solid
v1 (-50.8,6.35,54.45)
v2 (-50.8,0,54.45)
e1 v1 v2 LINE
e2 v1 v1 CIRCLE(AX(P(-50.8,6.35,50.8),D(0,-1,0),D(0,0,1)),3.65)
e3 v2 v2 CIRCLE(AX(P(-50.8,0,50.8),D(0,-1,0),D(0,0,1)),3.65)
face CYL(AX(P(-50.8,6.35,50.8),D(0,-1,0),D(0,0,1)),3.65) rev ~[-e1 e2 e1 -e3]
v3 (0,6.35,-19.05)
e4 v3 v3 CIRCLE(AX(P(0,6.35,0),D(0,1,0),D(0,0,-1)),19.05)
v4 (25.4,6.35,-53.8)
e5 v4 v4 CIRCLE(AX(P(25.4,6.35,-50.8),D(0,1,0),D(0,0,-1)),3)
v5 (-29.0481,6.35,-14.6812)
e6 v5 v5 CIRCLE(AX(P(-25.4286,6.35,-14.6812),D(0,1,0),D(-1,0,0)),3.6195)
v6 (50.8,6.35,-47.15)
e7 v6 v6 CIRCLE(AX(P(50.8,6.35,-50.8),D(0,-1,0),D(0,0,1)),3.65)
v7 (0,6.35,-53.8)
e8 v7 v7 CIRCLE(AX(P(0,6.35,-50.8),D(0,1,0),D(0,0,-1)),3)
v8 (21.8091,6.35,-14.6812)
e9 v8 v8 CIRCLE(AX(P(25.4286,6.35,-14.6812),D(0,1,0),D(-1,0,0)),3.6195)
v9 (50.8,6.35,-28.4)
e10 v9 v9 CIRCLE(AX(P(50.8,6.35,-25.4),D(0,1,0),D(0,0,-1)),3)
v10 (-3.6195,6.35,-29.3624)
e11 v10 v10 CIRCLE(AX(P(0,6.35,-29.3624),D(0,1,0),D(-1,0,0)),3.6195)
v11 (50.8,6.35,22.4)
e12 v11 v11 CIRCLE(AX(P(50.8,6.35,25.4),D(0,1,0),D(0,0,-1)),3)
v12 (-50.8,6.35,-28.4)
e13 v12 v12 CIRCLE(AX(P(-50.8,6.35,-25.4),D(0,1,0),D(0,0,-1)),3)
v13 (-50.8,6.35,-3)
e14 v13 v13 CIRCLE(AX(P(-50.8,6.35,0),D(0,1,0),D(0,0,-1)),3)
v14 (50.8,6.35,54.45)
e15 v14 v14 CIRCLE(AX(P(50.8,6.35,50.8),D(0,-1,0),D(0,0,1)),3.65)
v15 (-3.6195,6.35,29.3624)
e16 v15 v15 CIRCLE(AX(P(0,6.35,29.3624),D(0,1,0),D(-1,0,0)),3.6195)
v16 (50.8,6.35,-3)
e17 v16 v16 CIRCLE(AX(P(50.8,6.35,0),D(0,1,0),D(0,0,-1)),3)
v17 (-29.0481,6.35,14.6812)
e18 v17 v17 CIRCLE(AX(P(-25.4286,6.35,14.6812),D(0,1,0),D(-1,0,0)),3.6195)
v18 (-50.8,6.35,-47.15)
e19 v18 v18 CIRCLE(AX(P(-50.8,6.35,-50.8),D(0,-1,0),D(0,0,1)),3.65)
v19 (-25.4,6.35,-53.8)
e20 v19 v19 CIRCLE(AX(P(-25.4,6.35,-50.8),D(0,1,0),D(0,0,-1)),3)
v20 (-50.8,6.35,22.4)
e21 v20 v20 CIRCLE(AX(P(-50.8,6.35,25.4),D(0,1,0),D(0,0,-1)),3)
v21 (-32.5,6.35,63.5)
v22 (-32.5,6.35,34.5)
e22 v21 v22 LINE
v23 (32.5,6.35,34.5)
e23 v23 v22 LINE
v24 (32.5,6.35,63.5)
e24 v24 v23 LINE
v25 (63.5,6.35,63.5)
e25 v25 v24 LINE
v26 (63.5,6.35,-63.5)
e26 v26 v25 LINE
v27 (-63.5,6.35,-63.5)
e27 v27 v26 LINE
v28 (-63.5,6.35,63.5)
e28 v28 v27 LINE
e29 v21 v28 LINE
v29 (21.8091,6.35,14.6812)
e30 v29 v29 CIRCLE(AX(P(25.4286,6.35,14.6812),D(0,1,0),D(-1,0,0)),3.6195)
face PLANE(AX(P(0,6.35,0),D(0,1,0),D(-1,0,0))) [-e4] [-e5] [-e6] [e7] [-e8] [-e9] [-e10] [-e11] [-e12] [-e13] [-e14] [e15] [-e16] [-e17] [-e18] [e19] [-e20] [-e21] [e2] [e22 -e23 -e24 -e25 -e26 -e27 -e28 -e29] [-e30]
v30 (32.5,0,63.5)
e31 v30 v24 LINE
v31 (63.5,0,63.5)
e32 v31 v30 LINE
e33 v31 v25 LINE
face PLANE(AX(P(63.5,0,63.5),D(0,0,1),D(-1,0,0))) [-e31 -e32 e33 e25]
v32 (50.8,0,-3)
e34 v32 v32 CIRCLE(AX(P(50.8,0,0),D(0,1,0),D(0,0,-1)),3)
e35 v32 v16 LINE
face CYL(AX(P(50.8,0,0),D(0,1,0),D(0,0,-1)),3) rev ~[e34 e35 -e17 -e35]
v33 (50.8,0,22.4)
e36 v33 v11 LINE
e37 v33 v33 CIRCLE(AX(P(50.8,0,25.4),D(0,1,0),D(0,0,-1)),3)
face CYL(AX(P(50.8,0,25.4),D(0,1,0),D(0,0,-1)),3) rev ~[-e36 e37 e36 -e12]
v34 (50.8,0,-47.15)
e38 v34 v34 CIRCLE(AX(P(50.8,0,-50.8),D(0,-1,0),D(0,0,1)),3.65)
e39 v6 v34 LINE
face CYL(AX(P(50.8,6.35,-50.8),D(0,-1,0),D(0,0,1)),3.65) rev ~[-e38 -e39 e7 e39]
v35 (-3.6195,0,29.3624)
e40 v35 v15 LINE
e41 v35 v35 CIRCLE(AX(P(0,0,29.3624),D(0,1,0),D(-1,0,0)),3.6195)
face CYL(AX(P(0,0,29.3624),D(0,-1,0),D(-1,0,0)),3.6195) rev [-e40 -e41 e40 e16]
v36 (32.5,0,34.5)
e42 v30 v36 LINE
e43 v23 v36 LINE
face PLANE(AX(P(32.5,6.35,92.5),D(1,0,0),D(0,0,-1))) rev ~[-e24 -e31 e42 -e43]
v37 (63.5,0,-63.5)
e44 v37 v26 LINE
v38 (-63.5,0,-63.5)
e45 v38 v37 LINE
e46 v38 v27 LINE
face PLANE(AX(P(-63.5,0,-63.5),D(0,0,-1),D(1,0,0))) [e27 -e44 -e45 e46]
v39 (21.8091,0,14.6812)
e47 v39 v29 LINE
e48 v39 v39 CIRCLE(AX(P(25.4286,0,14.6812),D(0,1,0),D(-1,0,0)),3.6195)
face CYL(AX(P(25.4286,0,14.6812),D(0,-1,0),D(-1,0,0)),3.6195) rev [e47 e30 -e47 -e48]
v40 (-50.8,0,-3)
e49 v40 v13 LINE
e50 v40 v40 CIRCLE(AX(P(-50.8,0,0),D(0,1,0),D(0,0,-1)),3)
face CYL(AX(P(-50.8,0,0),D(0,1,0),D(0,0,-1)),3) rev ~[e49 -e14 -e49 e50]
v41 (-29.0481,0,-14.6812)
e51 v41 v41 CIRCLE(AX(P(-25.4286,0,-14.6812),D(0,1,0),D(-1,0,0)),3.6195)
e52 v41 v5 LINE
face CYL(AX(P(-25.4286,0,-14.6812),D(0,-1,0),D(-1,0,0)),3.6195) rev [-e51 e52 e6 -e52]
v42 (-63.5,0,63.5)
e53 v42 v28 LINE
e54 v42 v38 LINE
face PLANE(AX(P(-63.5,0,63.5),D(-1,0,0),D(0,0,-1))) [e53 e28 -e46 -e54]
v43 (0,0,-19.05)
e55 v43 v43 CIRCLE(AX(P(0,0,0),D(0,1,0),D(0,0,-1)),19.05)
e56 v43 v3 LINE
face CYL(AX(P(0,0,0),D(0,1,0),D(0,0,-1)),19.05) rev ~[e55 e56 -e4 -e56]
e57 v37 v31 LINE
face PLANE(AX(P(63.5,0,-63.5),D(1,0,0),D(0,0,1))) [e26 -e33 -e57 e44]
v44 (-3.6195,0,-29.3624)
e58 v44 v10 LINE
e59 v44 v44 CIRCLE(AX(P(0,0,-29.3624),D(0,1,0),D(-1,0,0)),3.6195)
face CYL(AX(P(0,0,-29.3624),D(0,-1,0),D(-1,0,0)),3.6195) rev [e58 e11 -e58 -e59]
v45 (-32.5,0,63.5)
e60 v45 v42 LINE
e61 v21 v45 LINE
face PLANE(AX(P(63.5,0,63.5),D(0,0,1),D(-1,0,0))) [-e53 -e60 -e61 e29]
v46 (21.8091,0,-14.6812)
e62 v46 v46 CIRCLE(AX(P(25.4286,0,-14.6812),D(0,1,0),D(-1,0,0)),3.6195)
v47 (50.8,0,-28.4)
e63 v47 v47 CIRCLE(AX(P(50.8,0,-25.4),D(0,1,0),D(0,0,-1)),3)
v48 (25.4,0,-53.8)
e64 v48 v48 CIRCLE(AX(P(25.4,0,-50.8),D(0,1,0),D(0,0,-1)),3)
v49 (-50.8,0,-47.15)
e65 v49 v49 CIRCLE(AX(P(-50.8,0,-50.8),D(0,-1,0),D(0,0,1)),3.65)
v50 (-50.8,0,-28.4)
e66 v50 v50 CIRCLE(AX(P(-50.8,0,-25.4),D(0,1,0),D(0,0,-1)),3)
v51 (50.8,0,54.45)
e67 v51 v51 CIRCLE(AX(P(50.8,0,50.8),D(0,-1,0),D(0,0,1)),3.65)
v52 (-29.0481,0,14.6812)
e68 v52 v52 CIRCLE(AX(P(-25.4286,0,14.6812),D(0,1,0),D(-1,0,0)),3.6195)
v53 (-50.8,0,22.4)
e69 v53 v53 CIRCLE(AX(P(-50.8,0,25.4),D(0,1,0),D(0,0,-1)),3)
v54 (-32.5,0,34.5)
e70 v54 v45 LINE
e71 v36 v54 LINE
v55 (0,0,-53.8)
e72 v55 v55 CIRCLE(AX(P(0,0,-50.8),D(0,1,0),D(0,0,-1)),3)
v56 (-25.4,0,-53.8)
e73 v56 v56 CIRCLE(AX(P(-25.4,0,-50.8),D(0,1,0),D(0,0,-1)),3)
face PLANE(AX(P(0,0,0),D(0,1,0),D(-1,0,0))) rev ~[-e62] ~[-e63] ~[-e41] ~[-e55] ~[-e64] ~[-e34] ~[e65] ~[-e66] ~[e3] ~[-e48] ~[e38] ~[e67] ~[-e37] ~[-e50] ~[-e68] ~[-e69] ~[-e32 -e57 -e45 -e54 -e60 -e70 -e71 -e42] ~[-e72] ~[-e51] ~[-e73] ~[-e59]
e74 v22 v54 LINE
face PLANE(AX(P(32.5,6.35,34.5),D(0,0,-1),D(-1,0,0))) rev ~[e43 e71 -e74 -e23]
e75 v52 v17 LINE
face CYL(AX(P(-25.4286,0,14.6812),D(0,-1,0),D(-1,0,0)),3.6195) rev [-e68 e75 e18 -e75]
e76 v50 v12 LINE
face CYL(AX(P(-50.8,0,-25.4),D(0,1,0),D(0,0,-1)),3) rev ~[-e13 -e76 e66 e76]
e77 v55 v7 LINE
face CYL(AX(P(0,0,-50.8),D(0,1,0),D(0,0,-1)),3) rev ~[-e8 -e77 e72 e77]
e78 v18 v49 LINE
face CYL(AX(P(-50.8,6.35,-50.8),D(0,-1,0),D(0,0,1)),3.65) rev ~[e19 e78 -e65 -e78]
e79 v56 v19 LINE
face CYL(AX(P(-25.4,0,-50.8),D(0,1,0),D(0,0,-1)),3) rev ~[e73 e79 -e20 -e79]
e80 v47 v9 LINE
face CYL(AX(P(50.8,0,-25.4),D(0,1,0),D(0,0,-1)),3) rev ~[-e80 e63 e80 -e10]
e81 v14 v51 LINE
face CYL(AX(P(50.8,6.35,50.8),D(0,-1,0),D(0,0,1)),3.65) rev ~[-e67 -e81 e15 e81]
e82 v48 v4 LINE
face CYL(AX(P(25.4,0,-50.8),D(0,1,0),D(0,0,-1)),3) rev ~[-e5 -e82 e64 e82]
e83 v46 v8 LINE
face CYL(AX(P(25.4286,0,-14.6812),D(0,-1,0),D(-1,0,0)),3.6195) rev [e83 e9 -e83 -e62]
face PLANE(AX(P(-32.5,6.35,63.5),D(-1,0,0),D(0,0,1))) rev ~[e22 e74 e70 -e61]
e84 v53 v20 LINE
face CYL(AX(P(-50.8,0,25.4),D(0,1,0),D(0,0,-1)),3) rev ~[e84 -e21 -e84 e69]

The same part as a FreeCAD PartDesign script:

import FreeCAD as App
import Part
import Sketcher
Q = App.Units.Quantity

doc = App.newDocument("Part")
body = doc.addObject("PartDesign::Body", "Body")

# Sketch on XZ plane
sketch1 = doc.addObject("Sketcher::SketchObject", "Sketch")
body.addObject(sketch1)
sketch1.AttachmentSupport = (doc.XZ_Plane, [""])
sketch1.MapMode = "FlatFace"
sketch1.addGeometry([
    Part.LineSegment(App.Vector(-63.5, 63.5, 0), App.Vector(63.5, 63.5, 0)),  # 0
    Part.LineSegment(App.Vector(63.5, 63.5, 0), App.Vector(63.5, -63.5, 0)),  # 1
    Part.LineSegment(App.Vector(63.5, -63.5, 0), App.Vector(-63.5, -63.5, 0)),  # 2
    Part.LineSegment(App.Vector(-63.5, -63.5, 0), App.Vector(-63.5, 63.5, 0)),  # 3
    Part.Circle(App.Vector(25.4, -14.7, 0), App.Vector(0, 0, 1), 3.6),  # 4
    Part.Circle(App.Vector(0, -29.4, 0), App.Vector(0, 0, 1), 3.6),  # 5
    Part.Circle(App.Vector(-25.4, -14.7, 0), App.Vector(0, 0, 1), 3.6),  # 6
    Part.Circle(App.Vector(25.4, 14.7, 0), App.Vector(0, 0, 1), 3.6),  # 7
    Part.Circle(App.Vector(-25.4, 14.7, 0), App.Vector(0, 0, 1), 3.6),  # 8
    Part.Circle(App.Vector(0, 29.4, 0), App.Vector(0, 0, 1), 3.6),  # 9
], False)
sketch1.addConstraint([
    Sketcher.Constraint("Coincident", 0, 2, 1, 1),
    Sketcher.Constraint("Coincident", 1, 2, 2, 1),
    Sketcher.Constraint("Coincident", 2, 2, 3, 1),
    Sketcher.Constraint("Coincident", 3, 2, 0, 1),
    Sketcher.Constraint("Horizontal", 0),
    Sketcher.Constraint("Vertical", 1),
    Sketcher.Constraint("Horizontal", 2),
    Sketcher.Constraint("Vertical", 3),
    Sketcher.Constraint("Equal", 4, 5),
    Sketcher.Constraint("Equal", 5, 6),
    Sketcher.Constraint("Equal", 6, 7),
    Sketcher.Constraint("Equal", 7, 8),
    Sketcher.Constraint("Equal", 8, 9),
    Sketcher.Constraint("Symmetric", 6, 3, 7, 3, -1, 1),
    Sketcher.Constraint("Symmetric", 4, 3, 8, 3, -1, 1),
    Sketcher.Constraint("Symmetric", 5, 3, 9, 3, -1, 1),
    Sketcher.Constraint("Symmetric", 0, 2, 2, 2, -1, 1),
    Sketcher.Constraint("Symmetric", 4, 3, 6, 3, -2),
    Sketcher.Constraint("PointOnObject", 5, 3, -2),
    Sketcher.Constraint("Equal", 2, 1),
    Sketcher.Constraint("DistanceX", 0, 1, 0, 2, Q("5 in")),
    Sketcher.Constraint("Diameter", 4, Q("0.285 in")),
    Sketcher.Constraint("DistanceY", 4, 3, -1, 1, Q("0.578 in")),
    Sketcher.Constraint("DistanceY", 5, 3, -1, 1, Q("1.156 in")),
    Sketcher.Constraint("DistanceX", -1, 1, 4, 3, 25.4286),
])
pad1 = doc.addObject("PartDesign::Pad", "Pad")
body.addObject(pad1)
pad1.Profile = sketch1
pad1.Length = Q("0.25 in")
pad1.Reversed = True

# Sketch on XZ plane
sketch2 = doc.addObject("Sketcher::SketchObject", "Sketch001")
body.addObject(sketch2)
sketch2.AttachmentSupport = (doc.XZ_Plane, [""])
sketch2.MapMode = "FlatFace"
sketch2.addGeometry(Part.Circle(App.Vector(-50.8, 50.8, 0), App.Vector(0, 0, 1), 3), False)
sketch2.addConstraint([
    Sketcher.Constraint("DistanceX", 0, 3, -1, 1, Q("2 in")),
    Sketcher.Constraint("DistanceY", -1, 1, 0, 3, Q("2 in")),
    Sketcher.Constraint("Diameter", 0, 6.0),
])
doc.recompute()
hole = doc.addObject("PartDesign::Hole", "Hole")
body.addObject(hole)
hole.Profile = sketch2
hole.ThreadType = "None"
hole.Diameter = 6
hole.DepthType = "ThroughAll"

# Sketch on XZ plane
sketch3 = doc.addObject("Sketcher::SketchObject", "Sketch002")
body.addObject(sketch3)
sketch3.AttachmentSupport = (doc.XZ_Plane, [""])
sketch3.MapMode = "FlatFace"
sketch3.addGeometry(Part.Circle(App.Vector(50.8, 50.8, 0), App.Vector(0, 0, 1), 3), False)
sketch3.addConstraint([
    Sketcher.Constraint("DistanceX", -1, 1, 0, 3, Q("2 in")),
    Sketcher.Constraint("DistanceY", -1, 1, 0, 3, Q("2 in")),
    Sketcher.Constraint("Diameter", 0, 6.0),
])
doc.recompute()
hole2 = doc.addObject("PartDesign::Hole", "Hole001")
body.addObject(hole2)
hole2.Profile = sketch3
hole2.ThreadType = "None"
hole2.Diameter = 6
hole2.DepthType = "ThroughAll"

# Sketch on XZ plane
sketch4 = doc.addObject("Sketcher::SketchObject", "Sketch003")
body.addObject(sketch4)
sketch4.AttachmentSupport = (doc.XZ_Plane, [""])
sketch4.MapMode = "FlatFace"
sketch4.addGeometry(Part.Circle(App.Vector(50.8, -50.8, 0), App.Vector(0, 0, 1), 3), False)
sketch4.addConstraint([
    Sketcher.Constraint("DistanceX", -1, 1, 0, 3, Q("2 in")),
    Sketcher.Constraint("DistanceY", 0, 3, -1, 1, Q("2 in")),
    Sketcher.Constraint("Diameter", 0, 6.0),
])
doc.recompute()
hole3 = doc.addObject("PartDesign::Hole", "Hole002")
body.addObject(hole3)
hole3.Profile = sketch4
hole3.ThreadType = "None"
hole3.Diameter = 6
hole3.DepthType = "ThroughAll"

# Sketch on XZ plane
sketch5 = doc.addObject("Sketcher::SketchObject", "Sketch004")
body.addObject(sketch5)
sketch5.AttachmentSupport = (doc.XZ_Plane, [""])
sketch5.MapMode = "FlatFace"
sketch5.addGeometry(Part.Circle(App.Vector(-50.8, -50.8, 0), App.Vector(0, 0, 1), 3), False)
sketch5.addConstraint([
    Sketcher.Constraint("DistanceX", 0, 3, -1, 1, Q("2 in")),
    Sketcher.Constraint("DistanceY", 0, 3, -1, 1, Q("2 in")),
    Sketcher.Constraint("Diameter", 0, 6.0),
])
doc.recompute()
hole4 = doc.addObject("PartDesign::Hole", "Hole003")
body.addObject(hole4)
hole4.Profile = sketch5
hole4.ThreadType = "None"
hole4.Diameter = 6
hole4.DepthType = "ThroughAll"

# Sketch on XZ plane
sketch6 = doc.addObject("Sketcher::SketchObject", "Sketch005")
body.addObject(sketch6)
sketch6.AttachmentSupport = (doc.XZ_Plane, [""])
sketch6.MapMode = "FlatFace"
sketch6.addGeometry(Part.Circle(App.Vector(0, 0, 0), App.Vector(0, 0, 1), 19), False)
sketch6.addConstraint([
    Sketcher.Constraint("Coincident", 0, 3, -1, 1),
    Sketcher.Constraint("Diameter", 0, Q("1.5 in")),
])
doc.recompute()
hole5 = doc.addObject("PartDesign::Hole", "Hole004")
body.addObject(hole5)
hole5.Profile = sketch6
hole5.ThreadType = "None"
hole5.Diameter = Q("1.5 in")
hole5.DepthType = "ThroughAll"
doc.recompute()

linearpattern = doc.addObject("PartDesign::LinearPattern", "LinearPattern")
body.addObject(linearpattern)
linearpattern.Originals = [hole]
linearpattern.Direction = (doc.Z_Axis, [""])
linearpattern.Mode = "offset"
linearpattern.Offset = Q("1 in")
linearpattern.Occurrences = 4
linearpattern.Reversed = True
body.Tip = linearpattern
doc.recompute()

linearpattern2 = doc.addObject("PartDesign::LinearPattern", "LinearPattern001")
body.addObject(linearpattern2)
linearpattern2.Originals = [hole]
linearpattern2.Direction = (doc.X_Axis, [""])
linearpattern2.Mode = "offset"
linearpattern2.Offset = Q("1 in")
linearpattern2.Occurrences = 4
body.Tip = linearpattern2
doc.recompute()

linearpattern3 = doc.addObject("PartDesign::LinearPattern", "LinearPattern002")
body.addObject(linearpattern3)
linearpattern3.Originals = [hole2]
linearpattern3.Direction = (doc.Z_Axis, [""])
linearpattern3.Mode = "offset"
linearpattern3.Offset = Q("1 in")
linearpattern3.Occurrences = 4
linearpattern3.Reversed = True
body.Tip = linearpattern3
doc.recompute()

linearpattern4 = doc.addObject("PartDesign::LinearPattern", "LinearPattern003")
body.addObject(linearpattern4)
linearpattern4.Originals = [hole3]
linearpattern4.Direction = (doc.X_Axis, [""])
linearpattern4.Mode = "offset"
linearpattern4.Offset = Q("1 in")
linearpattern4.Occurrences = 4
linearpattern4.Reversed = True
body.Tip = linearpattern4

# Sketch on XZ plane
sketch7 = doc.addObject("Sketcher::SketchObject", "Sketch006")
body.addObject(sketch7)
sketch7.AttachmentSupport = (doc.XZ_Plane, [""])
sketch7.MapMode = "FlatFace"
sketch7.AttachmentOffset = App.Placement(App.Vector(0, 0, -0.25 * 25.4), App.Rotation())
sketch7.addGeometry([
    Part.LineSegment(App.Vector(-32, 92, 0), App.Vector(32, 92, 0)),
    Part.LineSegment(App.Vector(32, 92, 0), App.Vector(32, 34, 0)),
    Part.LineSegment(App.Vector(32, 34, 0), App.Vector(-32, 34, 0)),
    Part.LineSegment(App.Vector(-32, 34, 0), App.Vector(-32, 92, 0)),
], False)
sketch7.addConstraint([
    Sketcher.Constraint("Coincident", 0, 2, 1, 1),
    Sketcher.Constraint("Coincident", 1, 2, 2, 1),
    Sketcher.Constraint("Coincident", 2, 2, 3, 1),
    Sketcher.Constraint("Coincident", 3, 2, 0, 1),
    Sketcher.Constraint("Horizontal", 0),
    Sketcher.Constraint("Vertical", 1),
    Sketcher.Constraint("Horizontal", 2),
    Sketcher.Constraint("Vertical", 3),
    Sketcher.Constraint("DistanceX", 0, 1, 0, 2, 65.0),
    Sketcher.Constraint("DistanceY", 1, 2, 1, 1, 58.0),
    Sketcher.Constraint("DistanceX", -1, 1, 0, 2, 32.5),
    Sketcher.Constraint("DistanceY", -1, 1, 0, 2, 92.5),
])
pocket1 = doc.addObject("PartDesign::Pocket", "Pocket")
body.addObject(pocket1)
pocket1.Profile = sketch7
pocket1.Length = Q("1 in")
pocket1.Reversed = True

# Sketch on XZ plane
sketch8 = doc.addObject("Sketcher::SketchObject", "Sketch007")
body.addObject(sketch8)
sketch8.AttachmentSupport = (doc.XZ_Plane, [""])
sketch8.MapMode = "FlatFace"
sketch8.AttachmentOffset = App.Placement(App.Vector(0, 0, -0.25 * 25.4), App.Rotation())
sketch8.addGeometry(Part.Circle(App.Vector(-50.8, -50.8, 0), App.Vector(0, 0, 1), 3.6), False)
sketch8.addConstraint([
    Sketcher.Constraint("DistanceX", 0, 3, -1, 1, Q("2 in")),
    Sketcher.Constraint("DistanceY", 0, 3, -1, 1, Q("2 in")),
    Sketcher.Constraint("Diameter", 0, Q("0.2874 in")),
])
doc.recompute()
hole6 = doc.addObject("PartDesign::Hole", "Hole005")
body.addObject(hole6)
hole6.Profile = sketch8
hole6.ThreadType = "None"
hole6.Diameter = Q("0.2874016 in")
hole6.DepthType = "ThroughAll"
hole6.Reversed = True

# Sketch on XZ plane
sketch9 = doc.addObject("Sketcher::SketchObject", "Sketch008")
body.addObject(sketch9)
sketch9.AttachmentSupport = (doc.XZ_Plane, [""])
sketch9.MapMode = "FlatFace"
sketch9.AttachmentOffset = App.Placement(App.Vector(0, 0, -0.25 * 25.4), App.Rotation())
sketch9.addGeometry(Part.Circle(App.Vector(50.8, -50.8, 0), App.Vector(0, 0, 1), 3.6), False)
sketch9.addConstraint([
    Sketcher.Constraint("DistanceX", -1, 1, 0, 3, Q("2 in")),
    Sketcher.Constraint("DistanceY", 0, 3, -1, 1, Q("2 in")),
    Sketcher.Constraint("Diameter", 0, Q("0.2874 in")),
])
doc.recompute()
hole7 = doc.addObject("PartDesign::Hole", "Hole006")
body.addObject(hole7)
hole7.Profile = sketch9
hole7.ThreadType = "None"
hole7.Diameter = Q("0.2874016 in")
hole7.DepthType = "ThroughAll"
hole7.Reversed = True

# Sketch on XZ plane
sketch10 = doc.addObject("Sketcher::SketchObject", "Sketch009")
body.addObject(sketch10)
sketch10.AttachmentSupport = (doc.XZ_Plane, [""])
sketch10.MapMode = "FlatFace"
sketch10.AttachmentOffset = App.Placement(App.Vector(0, 0, -0.25 * 25.4), App.Rotation())
sketch10.addGeometry(Part.Circle(App.Vector(50.8, 50.8, 0), App.Vector(0, 0, 1), 3.6), False)
sketch10.addConstraint([
    Sketcher.Constraint("DistanceX", -1, 1, 0, 3, Q("2 in")),
    Sketcher.Constraint("DistanceY", -1, 1, 0, 3, Q("2 in")),
    Sketcher.Constraint("Diameter", 0, Q("0.2874 in")),
])
doc.recompute()
hole8 = doc.addObject("PartDesign::Hole", "Hole007")
body.addObject(hole8)
hole8.Profile = sketch10
hole8.ThreadType = "None"
hole8.Diameter = Q("0.2874016 in")
hole8.DepthType = "ThroughAll"
hole8.Reversed = True

# Sketch on XZ plane
sketch11 = doc.addObject("Sketcher::SketchObject", "Sketch010")
body.addObject(sketch11)
sketch11.AttachmentSupport = (doc.XZ_Plane, [""])
sketch11.MapMode = "FlatFace"
sketch11.AttachmentOffset = App.Placement(App.Vector(0, 0, -0.25 * 25.4), App.Rotation())
sketch11.addGeometry(Part.Circle(App.Vector(-50.8, 50.8, 0), App.Vector(0, 0, 1), 3.6), False)
sketch11.addConstraint([
    Sketcher.Constraint("DistanceX", 0, 3, -1, 1, Q("2 in")),
    Sketcher.Constraint("DistanceY", -1, 1, 0, 3, Q("2 in")),
    Sketcher.Constraint("Diameter", 0, Q("0.2874 in")),
])
doc.recompute()
hole9 = doc.addObject("PartDesign::Hole", "Hole008")
body.addObject(hole9)
hole9.Profile = sketch11
hole9.ThreadType = "None"
hole9.Diameter = Q("0.2874016 in")
hole9.DepthType = "ThroughAll"
hole9.Reversed = True

doc.recompute()
